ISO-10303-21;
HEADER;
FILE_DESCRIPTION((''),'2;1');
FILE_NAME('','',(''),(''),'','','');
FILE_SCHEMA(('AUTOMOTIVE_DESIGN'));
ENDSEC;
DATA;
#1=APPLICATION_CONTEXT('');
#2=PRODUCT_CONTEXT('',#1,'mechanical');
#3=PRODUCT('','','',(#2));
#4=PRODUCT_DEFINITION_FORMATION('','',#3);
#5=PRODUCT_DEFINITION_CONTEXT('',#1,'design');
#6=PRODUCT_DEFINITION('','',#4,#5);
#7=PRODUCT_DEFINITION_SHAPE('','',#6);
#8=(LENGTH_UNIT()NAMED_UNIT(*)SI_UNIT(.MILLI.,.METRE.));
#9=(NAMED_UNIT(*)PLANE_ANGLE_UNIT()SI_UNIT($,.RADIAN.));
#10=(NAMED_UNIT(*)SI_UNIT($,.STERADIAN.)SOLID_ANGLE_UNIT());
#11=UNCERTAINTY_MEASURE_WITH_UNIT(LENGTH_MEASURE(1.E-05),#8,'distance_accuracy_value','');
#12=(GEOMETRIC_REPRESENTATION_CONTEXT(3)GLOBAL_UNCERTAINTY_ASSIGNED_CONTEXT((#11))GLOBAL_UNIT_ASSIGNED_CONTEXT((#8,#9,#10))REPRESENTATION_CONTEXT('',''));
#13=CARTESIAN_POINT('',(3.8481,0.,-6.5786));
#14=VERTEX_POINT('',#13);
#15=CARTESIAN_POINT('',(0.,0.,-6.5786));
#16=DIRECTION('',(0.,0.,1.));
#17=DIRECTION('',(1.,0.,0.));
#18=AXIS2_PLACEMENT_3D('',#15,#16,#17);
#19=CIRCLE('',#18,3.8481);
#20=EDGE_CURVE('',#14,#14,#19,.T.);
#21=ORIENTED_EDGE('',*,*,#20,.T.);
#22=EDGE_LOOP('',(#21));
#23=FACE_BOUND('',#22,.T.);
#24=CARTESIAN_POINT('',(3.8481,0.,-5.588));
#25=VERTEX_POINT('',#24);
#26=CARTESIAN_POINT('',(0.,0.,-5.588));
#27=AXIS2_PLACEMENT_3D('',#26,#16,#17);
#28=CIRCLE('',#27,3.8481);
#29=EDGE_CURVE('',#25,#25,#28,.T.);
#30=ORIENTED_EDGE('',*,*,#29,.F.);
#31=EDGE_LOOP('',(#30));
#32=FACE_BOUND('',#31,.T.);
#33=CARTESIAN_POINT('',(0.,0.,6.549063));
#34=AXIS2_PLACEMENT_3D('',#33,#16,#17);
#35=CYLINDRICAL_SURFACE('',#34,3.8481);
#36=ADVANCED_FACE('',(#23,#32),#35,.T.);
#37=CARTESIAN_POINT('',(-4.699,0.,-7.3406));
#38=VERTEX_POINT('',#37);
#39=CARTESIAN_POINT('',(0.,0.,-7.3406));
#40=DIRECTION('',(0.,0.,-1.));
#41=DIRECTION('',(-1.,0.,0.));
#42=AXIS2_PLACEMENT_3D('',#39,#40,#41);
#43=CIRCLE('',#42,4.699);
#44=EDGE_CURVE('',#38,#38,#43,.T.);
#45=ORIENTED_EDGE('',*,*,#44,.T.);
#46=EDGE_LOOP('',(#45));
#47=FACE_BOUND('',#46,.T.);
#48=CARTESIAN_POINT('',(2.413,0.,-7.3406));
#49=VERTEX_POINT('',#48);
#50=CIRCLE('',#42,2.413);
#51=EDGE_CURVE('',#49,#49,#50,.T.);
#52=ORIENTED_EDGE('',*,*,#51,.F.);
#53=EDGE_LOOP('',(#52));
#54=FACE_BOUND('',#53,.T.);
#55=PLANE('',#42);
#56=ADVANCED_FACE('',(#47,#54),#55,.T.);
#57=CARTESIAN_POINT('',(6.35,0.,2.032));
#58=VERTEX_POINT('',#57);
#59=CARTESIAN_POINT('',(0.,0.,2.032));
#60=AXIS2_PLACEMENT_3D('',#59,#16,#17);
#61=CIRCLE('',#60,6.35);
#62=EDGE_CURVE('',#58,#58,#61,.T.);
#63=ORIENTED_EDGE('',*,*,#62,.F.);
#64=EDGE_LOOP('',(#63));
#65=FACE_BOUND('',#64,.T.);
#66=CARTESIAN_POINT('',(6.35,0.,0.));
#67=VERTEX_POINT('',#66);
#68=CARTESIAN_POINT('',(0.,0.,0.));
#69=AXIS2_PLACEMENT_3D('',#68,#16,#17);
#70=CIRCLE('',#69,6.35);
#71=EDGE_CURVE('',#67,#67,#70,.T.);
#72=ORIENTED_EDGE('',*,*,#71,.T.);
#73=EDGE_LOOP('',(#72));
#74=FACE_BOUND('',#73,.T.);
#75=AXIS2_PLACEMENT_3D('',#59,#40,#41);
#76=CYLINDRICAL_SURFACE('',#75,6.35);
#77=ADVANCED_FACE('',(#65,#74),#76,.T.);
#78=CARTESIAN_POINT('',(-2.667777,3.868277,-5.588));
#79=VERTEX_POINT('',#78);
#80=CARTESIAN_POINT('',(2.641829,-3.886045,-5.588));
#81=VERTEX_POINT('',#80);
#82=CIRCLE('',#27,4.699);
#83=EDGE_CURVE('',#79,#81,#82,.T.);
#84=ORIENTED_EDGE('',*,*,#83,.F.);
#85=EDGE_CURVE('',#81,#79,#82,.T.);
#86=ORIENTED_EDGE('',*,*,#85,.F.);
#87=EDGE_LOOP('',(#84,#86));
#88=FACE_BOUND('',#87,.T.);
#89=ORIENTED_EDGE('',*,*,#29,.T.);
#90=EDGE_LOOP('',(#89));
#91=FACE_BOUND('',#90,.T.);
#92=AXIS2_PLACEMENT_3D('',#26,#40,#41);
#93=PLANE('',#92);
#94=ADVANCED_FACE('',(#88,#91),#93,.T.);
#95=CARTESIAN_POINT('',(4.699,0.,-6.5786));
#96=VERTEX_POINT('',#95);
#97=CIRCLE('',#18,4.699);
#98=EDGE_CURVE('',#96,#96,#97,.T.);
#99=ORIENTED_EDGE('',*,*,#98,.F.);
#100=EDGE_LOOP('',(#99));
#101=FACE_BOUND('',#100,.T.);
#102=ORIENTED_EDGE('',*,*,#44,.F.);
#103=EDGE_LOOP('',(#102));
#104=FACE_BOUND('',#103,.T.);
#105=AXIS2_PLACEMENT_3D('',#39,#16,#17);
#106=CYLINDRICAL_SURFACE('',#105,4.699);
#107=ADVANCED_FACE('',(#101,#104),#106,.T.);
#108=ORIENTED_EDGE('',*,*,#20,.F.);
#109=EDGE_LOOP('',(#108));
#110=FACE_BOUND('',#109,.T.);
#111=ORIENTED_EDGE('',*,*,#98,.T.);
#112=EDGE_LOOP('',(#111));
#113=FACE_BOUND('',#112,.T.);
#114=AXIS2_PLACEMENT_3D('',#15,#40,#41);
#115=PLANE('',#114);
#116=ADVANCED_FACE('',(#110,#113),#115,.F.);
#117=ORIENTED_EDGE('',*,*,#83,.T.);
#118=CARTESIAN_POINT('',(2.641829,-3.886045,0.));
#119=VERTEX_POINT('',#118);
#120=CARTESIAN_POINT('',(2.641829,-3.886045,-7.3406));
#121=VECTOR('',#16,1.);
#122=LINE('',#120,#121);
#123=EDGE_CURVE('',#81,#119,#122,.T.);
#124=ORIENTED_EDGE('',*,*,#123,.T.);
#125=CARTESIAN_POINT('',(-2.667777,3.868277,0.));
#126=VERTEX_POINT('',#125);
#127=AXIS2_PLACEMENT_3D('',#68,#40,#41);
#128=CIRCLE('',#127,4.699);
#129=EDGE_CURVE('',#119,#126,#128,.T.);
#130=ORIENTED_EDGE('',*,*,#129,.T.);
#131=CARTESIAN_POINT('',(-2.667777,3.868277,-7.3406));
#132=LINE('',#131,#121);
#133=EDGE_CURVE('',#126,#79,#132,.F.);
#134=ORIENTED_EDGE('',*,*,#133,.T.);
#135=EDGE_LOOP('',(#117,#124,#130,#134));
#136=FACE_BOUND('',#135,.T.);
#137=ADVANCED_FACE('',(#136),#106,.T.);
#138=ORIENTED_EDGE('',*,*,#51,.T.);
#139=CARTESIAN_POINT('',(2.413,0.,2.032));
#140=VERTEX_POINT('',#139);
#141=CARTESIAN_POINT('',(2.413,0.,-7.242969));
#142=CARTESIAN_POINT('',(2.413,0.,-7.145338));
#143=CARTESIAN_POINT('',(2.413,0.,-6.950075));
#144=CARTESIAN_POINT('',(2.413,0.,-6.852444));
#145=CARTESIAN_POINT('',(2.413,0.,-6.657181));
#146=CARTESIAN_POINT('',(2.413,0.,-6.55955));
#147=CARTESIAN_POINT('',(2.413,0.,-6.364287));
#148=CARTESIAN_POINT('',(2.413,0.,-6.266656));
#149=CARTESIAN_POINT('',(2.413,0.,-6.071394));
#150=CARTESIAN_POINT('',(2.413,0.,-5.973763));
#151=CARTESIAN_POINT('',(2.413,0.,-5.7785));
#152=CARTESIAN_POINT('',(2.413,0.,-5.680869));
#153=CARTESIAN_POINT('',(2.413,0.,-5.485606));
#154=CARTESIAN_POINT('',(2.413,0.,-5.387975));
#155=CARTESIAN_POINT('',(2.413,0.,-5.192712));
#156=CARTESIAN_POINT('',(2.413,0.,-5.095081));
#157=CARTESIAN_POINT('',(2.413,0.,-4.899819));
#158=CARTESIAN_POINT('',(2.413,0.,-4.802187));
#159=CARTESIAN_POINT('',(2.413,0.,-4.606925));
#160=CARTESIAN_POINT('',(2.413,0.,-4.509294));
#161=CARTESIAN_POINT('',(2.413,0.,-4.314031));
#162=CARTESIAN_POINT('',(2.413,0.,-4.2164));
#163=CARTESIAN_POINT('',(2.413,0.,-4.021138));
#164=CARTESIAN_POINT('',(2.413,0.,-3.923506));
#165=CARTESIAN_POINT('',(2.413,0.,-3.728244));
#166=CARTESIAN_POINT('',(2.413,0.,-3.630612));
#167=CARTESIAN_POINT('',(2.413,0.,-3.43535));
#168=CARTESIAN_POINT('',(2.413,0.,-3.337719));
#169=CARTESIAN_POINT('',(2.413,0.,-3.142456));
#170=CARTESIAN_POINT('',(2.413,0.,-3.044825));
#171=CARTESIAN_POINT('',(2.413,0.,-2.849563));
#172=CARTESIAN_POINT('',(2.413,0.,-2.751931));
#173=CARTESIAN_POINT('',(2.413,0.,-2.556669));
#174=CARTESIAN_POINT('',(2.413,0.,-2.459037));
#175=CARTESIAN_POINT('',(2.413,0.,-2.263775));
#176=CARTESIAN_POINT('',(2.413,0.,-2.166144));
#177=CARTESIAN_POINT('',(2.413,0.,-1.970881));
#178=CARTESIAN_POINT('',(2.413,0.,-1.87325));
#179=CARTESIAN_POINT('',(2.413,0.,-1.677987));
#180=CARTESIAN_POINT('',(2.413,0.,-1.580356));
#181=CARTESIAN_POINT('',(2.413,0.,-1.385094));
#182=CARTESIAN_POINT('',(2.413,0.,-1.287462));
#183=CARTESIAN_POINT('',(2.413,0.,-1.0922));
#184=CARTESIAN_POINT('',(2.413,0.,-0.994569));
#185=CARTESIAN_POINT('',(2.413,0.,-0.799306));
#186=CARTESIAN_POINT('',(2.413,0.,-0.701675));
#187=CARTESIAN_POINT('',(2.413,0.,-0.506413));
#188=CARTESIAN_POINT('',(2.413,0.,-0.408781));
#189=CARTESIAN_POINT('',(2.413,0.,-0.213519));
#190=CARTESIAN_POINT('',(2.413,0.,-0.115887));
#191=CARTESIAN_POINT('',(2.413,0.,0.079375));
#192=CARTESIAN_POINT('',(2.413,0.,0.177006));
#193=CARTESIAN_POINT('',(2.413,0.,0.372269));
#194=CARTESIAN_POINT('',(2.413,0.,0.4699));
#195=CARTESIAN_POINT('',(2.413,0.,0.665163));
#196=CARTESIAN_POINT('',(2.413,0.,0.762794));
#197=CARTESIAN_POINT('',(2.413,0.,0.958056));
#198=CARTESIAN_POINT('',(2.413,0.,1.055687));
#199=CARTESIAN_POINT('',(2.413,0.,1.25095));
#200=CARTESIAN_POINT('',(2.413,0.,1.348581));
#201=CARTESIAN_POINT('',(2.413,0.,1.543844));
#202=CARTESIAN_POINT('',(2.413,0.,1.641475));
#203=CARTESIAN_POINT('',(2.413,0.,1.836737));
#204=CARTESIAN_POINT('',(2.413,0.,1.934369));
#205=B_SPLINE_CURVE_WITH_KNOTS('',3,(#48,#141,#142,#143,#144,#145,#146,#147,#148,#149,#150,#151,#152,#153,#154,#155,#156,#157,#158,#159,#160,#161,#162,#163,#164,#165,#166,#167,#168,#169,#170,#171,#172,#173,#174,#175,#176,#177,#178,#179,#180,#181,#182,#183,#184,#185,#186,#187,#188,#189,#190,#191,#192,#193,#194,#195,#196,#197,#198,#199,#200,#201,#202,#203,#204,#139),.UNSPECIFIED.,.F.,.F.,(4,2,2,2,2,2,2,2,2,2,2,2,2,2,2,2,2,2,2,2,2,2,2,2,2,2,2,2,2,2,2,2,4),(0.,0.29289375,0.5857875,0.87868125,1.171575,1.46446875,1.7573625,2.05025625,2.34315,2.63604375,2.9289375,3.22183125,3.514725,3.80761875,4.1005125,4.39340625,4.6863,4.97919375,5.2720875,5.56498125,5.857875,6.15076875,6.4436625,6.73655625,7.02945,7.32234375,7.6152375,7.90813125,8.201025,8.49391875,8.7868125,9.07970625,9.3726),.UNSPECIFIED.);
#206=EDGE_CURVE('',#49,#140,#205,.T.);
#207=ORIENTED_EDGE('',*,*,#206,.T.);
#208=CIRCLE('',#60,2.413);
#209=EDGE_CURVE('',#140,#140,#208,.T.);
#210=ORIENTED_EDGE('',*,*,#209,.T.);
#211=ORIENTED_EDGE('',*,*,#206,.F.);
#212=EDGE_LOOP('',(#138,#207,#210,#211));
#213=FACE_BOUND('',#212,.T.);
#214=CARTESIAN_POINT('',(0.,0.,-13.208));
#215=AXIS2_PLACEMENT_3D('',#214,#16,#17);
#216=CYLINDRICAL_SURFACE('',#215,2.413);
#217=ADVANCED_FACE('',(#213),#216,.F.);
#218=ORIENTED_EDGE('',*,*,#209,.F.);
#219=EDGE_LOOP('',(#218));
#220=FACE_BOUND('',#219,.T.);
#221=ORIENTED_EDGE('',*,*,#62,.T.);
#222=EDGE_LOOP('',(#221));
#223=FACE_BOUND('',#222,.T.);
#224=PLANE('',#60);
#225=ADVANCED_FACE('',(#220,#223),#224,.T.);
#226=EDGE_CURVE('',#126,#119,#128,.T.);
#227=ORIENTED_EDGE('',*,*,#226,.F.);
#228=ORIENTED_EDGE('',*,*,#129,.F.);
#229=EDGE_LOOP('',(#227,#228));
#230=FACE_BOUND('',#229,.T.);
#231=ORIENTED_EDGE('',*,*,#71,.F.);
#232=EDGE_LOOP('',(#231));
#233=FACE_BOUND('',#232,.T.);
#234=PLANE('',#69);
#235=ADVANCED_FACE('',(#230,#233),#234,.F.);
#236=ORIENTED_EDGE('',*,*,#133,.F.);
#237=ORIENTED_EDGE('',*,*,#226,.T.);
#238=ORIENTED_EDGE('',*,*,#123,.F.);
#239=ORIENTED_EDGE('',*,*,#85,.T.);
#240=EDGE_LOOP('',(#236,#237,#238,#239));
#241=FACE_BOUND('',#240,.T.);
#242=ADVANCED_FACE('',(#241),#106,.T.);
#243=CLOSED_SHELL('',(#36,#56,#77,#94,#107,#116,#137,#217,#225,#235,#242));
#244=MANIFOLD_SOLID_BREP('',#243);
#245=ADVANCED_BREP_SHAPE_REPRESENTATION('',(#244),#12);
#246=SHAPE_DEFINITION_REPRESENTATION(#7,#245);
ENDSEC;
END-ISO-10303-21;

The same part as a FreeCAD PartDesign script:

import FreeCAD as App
import Part
import Sketcher
Q = App.Units.Quantity

doc = App.newDocument("Part")
body = doc.addObject("PartDesign::Body", "Body")

sketch1 = doc.addObject("Sketcher::SketchObject", "Sketch")
body.addObject(sketch1)
sketch1.AttachmentSupport = (doc.XY_Plane, [""])
sketch1.MapMode = "FlatFace"
sketch1.addGeometry(Part.Circle(App.Vector(0, 0, 0), App.Vector(0, 0, 1), 6.35), False)
sketch1.addConstraint([
    Sketcher.Constraint("Coincident", 0, 3, -1, 1),
    Sketcher.Constraint("Diameter", 0, Q("0.5 in")),
])
pad1 = doc.addObject("PartDesign::Pad", "Pad")
body.addObject(pad1)
pad1.Profile = sketch1
pad1.Length = Q("0.08 in")

sketch2 = doc.addObject("Sketcher::SketchObject", "Sketch001")
body.addObject(sketch2)
sketch2.AttachmentSupport = (doc.XY_Plane, [""])
sketch2.MapMode = "FlatFace"
sketch2.addGeometry(Part.Circle(App.Vector(0, 0, 0), App.Vector(0, 0, 1), 4.699), False)
sketch2.addConstraint([
    Sketcher.Constraint("Coincident", 0, 3, -1, 1),
    Sketcher.Constraint("Diameter", 0, Q("0.37 in")),
])
pad2 = doc.addObject("PartDesign::Pad", "Pad001")
body.addObject(pad2)
pad2.Profile = sketch2
pad2.Length = Q("0.289 in")
pad2.Reversed = True

sketch3 = doc.addObject("Sketcher::SketchObject", "Sketch002")
body.addObject(sketch3)
sketch3.AttachmentSupport = (doc.YZ_Plane, [""])
sketch3.MapMode = "FlatFace"
sketch3.addGeometry([
    Part.LineSegment(App.Vector(4.699, -5.588, 0), App.Vector(3.8481, -5.588, 0)),
    Part.LineSegment(App.Vector(3.8481, -5.588, 0), App.Vector(3.8481, -6.5786, 0)),
    Part.LineSegment(App.Vector(3.8481, -6.5786, 0), App.Vector(4.699, -6.5786, 0)),
    Part.LineSegment(App.Vector(4.699, -6.5786, 0), App.Vector(4.699, -5.588, 0)),
], False)
sketch3.addConstraint([
    Sketcher.Constraint("Coincident", 0, 2, 1, 1),
    Sketcher.Constraint("Coincident", 1, 2, 2, 1),
    Sketcher.Constraint("Coincident", 2, 2, 3, 1),
    Sketcher.Constraint("Coincident", 3, 2, 0, 1),
    Sketcher.Constraint("Horizontal", 0),
    Sketcher.Constraint("Vertical", 1),
    Sketcher.Constraint("Horizontal", 2),
    Sketcher.Constraint("Vertical", 3),
    Sketcher.Constraint("DistanceY", 1, 2, 1, 1, Q("0.039 in")),
    Sketcher.Constraint("DistanceY", 0, 2, -1, 1, Q("0.22 in")),
    Sketcher.Constraint("DistanceX", 0, 2, 0, 1, Q("0.0335 in")),
    Sketcher.Constraint("DistanceX", -1, 1, 2, 2, Q("0.185 in")),
])
groove = doc.addObject("PartDesign::Groove", "Groove")
body.addObject(groove)
groove.Profile = sketch3
groove.ReferenceAxis = (sketch3, ["V_Axis"])
groove.Angle = 360

sketch4 = doc.addObject("Sketcher::SketchObject", "Sketch003")
body.addObject(sketch4)
sketch4.AttachmentSupport = (doc.XY_Plane, [""])
sketch4.MapMode = "FlatFace"
sketch4.AttachmentOffset = App.Placement(App.Vector(0, 0, 0.08 * 25.4), App.Rotation())
sketch4.addGeometry(Part.Circle(App.Vector(0, 0, 0), App.Vector(0, 0, 1), 2.413), False)
sketch4.addConstraint([
    Sketcher.Constraint("Coincident", 0, 3, -1, 1),
    Sketcher.Constraint("Diameter", 0, Q("0.19 in")),
])
pocket1 = doc.addObject("PartDesign::Pocket", "Pocket")
body.addObject(pocket1)
pocket1.Profile = sketch4
pocket1.Length = Q("0.6 in")

doc.recompute()
